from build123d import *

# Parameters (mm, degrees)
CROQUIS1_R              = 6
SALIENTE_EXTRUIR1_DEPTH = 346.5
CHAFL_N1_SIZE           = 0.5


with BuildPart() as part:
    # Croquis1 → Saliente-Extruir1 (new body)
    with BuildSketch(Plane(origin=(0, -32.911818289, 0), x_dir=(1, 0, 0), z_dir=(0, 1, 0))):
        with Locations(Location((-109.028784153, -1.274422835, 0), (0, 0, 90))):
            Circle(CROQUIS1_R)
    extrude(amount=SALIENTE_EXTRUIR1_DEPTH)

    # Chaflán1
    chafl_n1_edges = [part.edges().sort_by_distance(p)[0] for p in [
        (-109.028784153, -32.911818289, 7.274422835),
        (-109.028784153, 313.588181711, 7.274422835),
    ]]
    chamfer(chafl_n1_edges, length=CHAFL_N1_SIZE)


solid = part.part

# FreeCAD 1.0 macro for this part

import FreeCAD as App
import Part
import Sketcher
from FreeCAD import Vector
Q = App.Units.Quantity


def edges_at(feature, points):
    """Names of the edges that pass closest to the given points."""
    edges = feature.Shape.Edges
    near = lambda p: min(range(len(edges)), key=lambda i: edges[i].distToShape(Part.Vertex(*p))[0])
    return sorted({f"Edge{near(p) + 1}" for p in points})

doc = App.newDocument("Part")
body = doc.addObject("PartDesign::Body", "Body")

# Sketch on XZ plane
sketch1 = body.newObject("Sketcher::SketchObject", "Sketch")
sketch1.AttachmentSupport = (doc.getObject("XZ_Plane"), [""])
sketch1.MapMode = "FlatFace"
sketch1.AttachmentOffset = App.Placement(Vector(0, 0, 32.911818), App.Rotation())
sketch1.addGeometry(Part.Circle(Vector(-109, 1, 0), Vector(0, 0, 1), 6), False)
sketch1.addConstraint([
    Sketcher.Constraint("Diameter", 0, Q("12 mm")),
    Sketcher.Constraint("DistanceX", 0, 3, -1, 1, Q("109.028784 mm")),
    Sketcher.Constraint("DistanceY", -1, 1, 0, 3, Q("1.274423 mm")),
])
pad1 = body.newObject("PartDesign::Pad", "Pad")
pad1.Profile = sketch1
pad1.Length = 346.5
pad1.Reversed = True
doc.recompute()

chamfer = body.newObject("PartDesign::Chamfer", "Chamfer")
chamfer.Base = (pad1, edges_at(pad1, [(-109.029, -32.912, 7.274), (-109.029, 313.588, 7.274)]))
chamfer.Size = 0.5

doc.recompute()
